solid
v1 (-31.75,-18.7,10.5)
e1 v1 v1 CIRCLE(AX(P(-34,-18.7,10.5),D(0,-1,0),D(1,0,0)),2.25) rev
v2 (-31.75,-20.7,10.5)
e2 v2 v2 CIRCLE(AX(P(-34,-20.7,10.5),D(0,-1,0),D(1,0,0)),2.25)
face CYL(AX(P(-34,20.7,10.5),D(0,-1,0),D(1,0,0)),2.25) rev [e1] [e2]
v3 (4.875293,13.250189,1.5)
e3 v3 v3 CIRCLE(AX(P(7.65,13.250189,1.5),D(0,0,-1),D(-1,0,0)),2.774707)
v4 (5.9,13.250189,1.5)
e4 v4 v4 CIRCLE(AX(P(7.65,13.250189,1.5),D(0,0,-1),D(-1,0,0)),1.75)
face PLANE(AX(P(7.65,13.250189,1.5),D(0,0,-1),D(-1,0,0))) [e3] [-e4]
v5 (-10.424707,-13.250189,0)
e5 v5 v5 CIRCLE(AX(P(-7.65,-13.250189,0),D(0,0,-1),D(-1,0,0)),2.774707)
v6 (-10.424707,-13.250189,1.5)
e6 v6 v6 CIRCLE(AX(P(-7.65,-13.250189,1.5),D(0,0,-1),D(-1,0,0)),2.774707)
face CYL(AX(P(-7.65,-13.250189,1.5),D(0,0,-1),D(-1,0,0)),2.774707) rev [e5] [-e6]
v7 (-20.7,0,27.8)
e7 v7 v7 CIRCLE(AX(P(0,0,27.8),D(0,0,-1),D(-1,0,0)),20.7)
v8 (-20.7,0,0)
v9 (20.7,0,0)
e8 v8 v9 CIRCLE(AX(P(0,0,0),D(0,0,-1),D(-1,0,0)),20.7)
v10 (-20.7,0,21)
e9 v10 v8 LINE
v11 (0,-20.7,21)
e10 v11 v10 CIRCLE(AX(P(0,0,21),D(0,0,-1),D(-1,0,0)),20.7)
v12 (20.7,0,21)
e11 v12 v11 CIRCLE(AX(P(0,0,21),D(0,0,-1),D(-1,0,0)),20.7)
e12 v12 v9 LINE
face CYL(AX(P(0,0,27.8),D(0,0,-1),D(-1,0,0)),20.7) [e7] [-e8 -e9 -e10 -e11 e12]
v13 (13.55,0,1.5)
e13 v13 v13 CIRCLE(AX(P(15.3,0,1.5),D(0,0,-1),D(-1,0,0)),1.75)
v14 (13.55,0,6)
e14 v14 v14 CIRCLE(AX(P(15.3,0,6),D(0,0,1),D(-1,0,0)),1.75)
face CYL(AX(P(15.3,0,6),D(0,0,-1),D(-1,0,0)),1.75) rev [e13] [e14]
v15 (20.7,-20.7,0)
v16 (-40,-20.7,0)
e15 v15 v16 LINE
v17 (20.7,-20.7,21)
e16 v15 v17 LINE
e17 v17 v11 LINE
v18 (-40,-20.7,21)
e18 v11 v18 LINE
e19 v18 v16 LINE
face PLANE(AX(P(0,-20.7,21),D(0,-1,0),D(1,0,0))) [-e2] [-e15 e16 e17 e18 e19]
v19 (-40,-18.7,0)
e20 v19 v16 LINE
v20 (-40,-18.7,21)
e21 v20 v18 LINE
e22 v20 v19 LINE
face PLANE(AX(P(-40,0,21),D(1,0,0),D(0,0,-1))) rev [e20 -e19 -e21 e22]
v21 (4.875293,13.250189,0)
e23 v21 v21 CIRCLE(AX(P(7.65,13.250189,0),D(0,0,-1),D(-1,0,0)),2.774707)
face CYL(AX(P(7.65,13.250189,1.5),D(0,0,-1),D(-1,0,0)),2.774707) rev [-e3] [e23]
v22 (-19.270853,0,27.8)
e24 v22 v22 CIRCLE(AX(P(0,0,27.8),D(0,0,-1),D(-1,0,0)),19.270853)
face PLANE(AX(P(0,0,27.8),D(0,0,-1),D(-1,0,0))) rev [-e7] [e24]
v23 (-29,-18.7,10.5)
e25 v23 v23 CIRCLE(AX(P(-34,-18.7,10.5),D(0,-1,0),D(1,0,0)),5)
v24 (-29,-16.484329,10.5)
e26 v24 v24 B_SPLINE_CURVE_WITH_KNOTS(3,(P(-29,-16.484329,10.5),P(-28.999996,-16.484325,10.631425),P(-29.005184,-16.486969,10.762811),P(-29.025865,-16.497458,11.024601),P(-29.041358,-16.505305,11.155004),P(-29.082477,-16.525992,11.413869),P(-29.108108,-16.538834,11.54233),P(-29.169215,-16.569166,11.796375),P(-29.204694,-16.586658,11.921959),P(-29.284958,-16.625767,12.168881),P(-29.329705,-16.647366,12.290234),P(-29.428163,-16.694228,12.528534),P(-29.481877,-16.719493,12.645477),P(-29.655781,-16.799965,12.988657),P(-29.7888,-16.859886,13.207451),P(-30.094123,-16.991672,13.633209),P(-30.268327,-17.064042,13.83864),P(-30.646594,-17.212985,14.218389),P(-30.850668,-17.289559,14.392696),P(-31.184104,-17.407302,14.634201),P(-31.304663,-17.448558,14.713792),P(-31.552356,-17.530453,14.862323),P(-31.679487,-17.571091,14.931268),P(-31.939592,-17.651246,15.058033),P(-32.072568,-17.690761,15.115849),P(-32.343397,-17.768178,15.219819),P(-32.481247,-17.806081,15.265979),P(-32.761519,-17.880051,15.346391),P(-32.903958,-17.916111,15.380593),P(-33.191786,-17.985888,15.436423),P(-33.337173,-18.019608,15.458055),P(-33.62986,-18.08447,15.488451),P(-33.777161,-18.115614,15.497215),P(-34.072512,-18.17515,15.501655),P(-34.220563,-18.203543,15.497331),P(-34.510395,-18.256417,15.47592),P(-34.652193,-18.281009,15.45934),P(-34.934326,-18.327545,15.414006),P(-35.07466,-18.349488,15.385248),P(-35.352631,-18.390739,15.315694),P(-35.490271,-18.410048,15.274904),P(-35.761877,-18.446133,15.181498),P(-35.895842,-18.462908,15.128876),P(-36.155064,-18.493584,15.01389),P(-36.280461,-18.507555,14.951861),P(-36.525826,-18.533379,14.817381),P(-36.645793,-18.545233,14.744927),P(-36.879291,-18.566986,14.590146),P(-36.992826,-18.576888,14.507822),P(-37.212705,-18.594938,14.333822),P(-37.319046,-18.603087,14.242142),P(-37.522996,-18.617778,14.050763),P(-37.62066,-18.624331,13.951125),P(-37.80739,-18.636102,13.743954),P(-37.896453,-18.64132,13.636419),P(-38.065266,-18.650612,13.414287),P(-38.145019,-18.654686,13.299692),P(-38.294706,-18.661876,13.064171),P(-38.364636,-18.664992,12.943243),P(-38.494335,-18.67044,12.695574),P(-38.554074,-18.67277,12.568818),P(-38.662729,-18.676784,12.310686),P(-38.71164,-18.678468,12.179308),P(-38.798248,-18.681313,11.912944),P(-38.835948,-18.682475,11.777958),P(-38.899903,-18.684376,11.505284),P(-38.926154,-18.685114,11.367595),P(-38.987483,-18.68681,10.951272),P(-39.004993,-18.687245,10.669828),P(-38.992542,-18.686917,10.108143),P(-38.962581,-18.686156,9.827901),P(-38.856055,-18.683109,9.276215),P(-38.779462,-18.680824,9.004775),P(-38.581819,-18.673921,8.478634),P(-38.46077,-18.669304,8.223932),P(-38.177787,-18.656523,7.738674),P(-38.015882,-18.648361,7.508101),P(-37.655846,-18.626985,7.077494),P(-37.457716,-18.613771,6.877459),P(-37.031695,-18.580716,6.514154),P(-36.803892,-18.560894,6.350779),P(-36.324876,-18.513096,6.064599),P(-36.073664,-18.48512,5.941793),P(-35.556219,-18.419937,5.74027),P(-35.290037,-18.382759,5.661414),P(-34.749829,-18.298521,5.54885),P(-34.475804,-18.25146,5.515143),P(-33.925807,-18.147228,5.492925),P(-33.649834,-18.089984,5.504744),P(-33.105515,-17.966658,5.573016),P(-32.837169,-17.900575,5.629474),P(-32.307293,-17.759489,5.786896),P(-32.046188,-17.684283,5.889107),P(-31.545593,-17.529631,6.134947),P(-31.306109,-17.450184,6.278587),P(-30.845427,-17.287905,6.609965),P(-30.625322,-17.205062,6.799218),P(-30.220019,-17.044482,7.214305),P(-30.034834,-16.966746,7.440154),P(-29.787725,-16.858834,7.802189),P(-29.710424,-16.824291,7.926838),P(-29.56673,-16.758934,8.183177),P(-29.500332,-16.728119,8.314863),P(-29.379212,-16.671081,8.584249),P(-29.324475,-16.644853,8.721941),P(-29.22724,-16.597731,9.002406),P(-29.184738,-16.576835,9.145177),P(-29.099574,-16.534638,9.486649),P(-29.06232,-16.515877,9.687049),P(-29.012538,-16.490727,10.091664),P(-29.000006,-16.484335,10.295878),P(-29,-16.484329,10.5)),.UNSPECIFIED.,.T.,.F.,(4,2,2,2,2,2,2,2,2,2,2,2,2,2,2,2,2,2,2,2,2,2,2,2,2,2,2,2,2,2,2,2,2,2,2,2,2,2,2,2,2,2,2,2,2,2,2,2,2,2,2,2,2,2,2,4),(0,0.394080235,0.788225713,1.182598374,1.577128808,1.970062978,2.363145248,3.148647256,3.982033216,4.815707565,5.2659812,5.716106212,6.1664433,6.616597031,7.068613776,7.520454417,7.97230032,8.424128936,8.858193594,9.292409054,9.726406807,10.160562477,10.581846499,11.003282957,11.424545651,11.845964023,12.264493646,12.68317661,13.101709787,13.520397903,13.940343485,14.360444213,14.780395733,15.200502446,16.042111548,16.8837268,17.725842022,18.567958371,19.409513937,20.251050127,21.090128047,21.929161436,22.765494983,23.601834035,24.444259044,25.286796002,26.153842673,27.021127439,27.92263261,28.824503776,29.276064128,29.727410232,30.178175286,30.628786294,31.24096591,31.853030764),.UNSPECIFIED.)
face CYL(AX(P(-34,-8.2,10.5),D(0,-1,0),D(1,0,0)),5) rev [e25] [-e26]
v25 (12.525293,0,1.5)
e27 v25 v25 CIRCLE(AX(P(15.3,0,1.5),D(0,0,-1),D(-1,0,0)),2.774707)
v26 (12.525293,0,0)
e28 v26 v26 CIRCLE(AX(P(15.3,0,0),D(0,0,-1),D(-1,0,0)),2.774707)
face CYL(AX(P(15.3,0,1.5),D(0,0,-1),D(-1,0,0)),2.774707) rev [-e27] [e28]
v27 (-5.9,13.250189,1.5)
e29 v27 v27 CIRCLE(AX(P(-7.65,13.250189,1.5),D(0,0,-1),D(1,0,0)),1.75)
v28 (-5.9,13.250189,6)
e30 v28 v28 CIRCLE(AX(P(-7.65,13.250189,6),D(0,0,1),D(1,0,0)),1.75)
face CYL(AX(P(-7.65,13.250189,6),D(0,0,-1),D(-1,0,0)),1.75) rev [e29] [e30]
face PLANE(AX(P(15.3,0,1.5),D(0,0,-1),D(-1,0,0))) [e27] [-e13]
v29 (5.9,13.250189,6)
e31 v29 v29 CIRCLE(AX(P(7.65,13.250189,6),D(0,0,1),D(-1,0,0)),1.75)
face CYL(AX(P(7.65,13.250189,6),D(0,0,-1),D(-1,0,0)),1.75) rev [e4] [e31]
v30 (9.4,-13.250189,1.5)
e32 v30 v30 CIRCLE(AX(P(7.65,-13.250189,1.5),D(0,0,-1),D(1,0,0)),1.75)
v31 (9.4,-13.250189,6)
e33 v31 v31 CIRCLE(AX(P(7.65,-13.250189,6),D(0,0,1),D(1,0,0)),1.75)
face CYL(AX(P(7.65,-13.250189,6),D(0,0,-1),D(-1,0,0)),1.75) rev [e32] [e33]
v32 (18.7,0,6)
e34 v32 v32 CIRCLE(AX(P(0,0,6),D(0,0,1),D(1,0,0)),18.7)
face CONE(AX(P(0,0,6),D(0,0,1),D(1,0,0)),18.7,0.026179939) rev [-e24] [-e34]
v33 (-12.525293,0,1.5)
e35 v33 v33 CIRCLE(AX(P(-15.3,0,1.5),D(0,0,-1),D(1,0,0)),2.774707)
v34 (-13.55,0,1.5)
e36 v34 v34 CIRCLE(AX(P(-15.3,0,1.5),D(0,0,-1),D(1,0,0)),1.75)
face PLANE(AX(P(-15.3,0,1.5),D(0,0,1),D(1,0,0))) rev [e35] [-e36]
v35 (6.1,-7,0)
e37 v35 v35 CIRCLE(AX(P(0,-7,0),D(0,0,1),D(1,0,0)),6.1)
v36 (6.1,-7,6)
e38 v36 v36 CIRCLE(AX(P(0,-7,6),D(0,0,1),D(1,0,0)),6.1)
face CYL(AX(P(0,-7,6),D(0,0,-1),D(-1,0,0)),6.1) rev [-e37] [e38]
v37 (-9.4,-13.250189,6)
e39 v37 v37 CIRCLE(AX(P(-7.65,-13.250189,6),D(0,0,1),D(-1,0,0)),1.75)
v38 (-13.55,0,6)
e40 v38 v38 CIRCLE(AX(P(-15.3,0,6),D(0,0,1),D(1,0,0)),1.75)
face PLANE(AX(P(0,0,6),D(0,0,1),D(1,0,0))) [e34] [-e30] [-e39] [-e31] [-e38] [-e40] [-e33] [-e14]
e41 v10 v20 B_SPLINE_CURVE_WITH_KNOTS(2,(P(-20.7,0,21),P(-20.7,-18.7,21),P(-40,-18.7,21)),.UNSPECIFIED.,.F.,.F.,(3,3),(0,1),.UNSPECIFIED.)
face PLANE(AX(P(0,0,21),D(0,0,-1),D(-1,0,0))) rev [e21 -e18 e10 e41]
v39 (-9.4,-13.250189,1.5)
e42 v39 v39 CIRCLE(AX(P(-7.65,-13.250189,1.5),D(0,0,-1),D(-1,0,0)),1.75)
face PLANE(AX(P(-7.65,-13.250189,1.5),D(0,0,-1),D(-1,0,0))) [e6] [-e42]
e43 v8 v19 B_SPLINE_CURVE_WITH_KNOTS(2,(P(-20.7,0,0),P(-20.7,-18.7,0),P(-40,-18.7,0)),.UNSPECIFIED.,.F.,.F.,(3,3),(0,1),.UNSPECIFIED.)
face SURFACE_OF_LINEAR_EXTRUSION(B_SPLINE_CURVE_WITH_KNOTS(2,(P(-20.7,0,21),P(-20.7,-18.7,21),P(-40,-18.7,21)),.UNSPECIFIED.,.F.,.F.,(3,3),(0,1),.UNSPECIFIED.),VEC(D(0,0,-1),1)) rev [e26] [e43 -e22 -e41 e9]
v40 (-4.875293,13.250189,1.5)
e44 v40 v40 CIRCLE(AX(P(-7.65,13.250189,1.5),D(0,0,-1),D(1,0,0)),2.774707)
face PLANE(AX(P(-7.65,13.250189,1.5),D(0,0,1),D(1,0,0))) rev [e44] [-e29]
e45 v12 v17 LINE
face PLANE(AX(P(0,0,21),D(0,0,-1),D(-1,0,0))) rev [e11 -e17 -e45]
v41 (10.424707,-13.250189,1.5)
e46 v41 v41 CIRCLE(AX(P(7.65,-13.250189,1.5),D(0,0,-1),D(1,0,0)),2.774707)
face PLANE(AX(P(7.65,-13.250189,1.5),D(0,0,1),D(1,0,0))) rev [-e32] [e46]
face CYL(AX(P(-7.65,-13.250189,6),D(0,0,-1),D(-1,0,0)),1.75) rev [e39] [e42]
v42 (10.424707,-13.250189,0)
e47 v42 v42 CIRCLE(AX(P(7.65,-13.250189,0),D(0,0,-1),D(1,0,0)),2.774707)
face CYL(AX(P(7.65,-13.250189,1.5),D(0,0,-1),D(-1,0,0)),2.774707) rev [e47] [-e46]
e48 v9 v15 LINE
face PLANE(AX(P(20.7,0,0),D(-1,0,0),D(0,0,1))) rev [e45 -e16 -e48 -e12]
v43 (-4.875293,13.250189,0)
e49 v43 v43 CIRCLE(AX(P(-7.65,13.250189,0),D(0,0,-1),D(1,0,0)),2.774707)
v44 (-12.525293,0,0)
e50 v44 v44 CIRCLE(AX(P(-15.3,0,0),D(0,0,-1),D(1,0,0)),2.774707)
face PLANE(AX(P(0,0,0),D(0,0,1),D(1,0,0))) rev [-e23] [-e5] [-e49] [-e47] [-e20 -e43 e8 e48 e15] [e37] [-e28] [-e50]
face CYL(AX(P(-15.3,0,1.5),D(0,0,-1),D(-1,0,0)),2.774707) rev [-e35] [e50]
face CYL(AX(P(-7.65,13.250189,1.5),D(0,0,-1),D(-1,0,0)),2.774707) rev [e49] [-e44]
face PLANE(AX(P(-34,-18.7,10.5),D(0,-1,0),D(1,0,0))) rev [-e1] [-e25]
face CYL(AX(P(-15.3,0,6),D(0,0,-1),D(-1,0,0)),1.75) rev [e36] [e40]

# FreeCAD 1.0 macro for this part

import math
import FreeCAD as App
import Part
import Sketcher


def faces_at(feature, points):
    """Names of the faces that lie closest to the given points."""
    faces = feature.Shape.Faces
    near = lambda p: min(range(len(faces)), key=lambda i: faces[i].distToShape(Part.Vertex(*p))[0])
    return sorted({f"Face{near(p) + 1}" for p in points})

doc = App.newDocument("Part")
body = doc.addObject("PartDesign::Body", "Body")

# Sketch on XY plane
sketch1 = body.newObject("Sketcher::SketchObject", "Sketch")
sketch1.AttachmentSupport = (doc.getObject("XY_Plane"), [""])
sketch1.MapMode = "FlatFace"
sketch1.addGeometry(Part.Circle(App.Vector(0, 0, 0), App.Vector(0, 0, 1), 18.7), False)
sketch1.addGeometry(Part.Circle(App.Vector(-7.7, -13.3, 0), App.Vector(0, 0, 1), 1.8), False)
sketch1.addGeometry(Part.Circle(App.Vector(7.7, -13.3, 0), App.Vector(0, 0, 1), 1.8), False)
sketch1.addGeometry(Part.Circle(App.Vector(0, -7, 0), App.Vector(0, 0, 1), 6.1), False)
sketch1.addGeometry(Part.Circle(App.Vector(-15.3, 0, 0), App.Vector(0, 0, 1), 1.8), False)
sketch1.addGeometry(Part.Circle(App.Vector(-7.7, 13.3, 0), App.Vector(0, 0, 1), 1.8), False)
sketch1.addGeometry(Part.Circle(App.Vector(15.3, 0, 0), App.Vector(0, 0, 1), 1.8), False)
sketch1.addGeometry(Part.Circle(App.Vector(7.7, 13.3, 0), App.Vector(0, 0, 1), 1.8), False)
sketch1.addConstraint(Sketcher.Constraint("Coincident", 0, 3, -1, 1))
sketch1.addConstraint(Sketcher.Constraint("Equal", 1, 2))
sketch1.addConstraint(Sketcher.Constraint("Equal", 2, 4))
sketch1.addConstraint(Sketcher.Constraint("Equal", 4, 5))
sketch1.addConstraint(Sketcher.Constraint("Equal", 5, 6))
sketch1.addConstraint(Sketcher.Constraint("Equal", 6, 7))
sketch1.addConstraint(Sketcher.Constraint("Symmetric", 2, 3, 5, 3, -1, 1))
sketch1.addConstraint(Sketcher.Constraint("Symmetric", 4, 3, 6, 3, -1, 1))
sketch1.addConstraint(Sketcher.Constraint("Symmetric", 1, 3, 7, 3, -1, 1))
sketch1.addConstraint(Sketcher.Constraint("Symmetric", 1, 3, 2, 3, -2))
sketch1.addConstraint(Sketcher.Constraint("PointOnObject", 3, 3, -2))
sketch1.addConstraint(Sketcher.Constraint("PointOnObject", 4, 3, -1))
sketch1.addConstraint(Sketcher.Constraint("Diameter", 0, 37.4))
sketch1.addConstraint(Sketcher.Constraint("Diameter", 1, 3.5))
sketch1.addConstraint(Sketcher.Constraint("Diameter", 3, 12.2))
sketch1.addConstraint(Sketcher.Constraint("DistanceY", 3, 3, -1, 1, 7.0))
sketch1.addConstraint(Sketcher.Constraint("DistanceX", 4, 3, -1, 1, 15.3))
sketch1.addConstraint(Sketcher.Constraint("DistanceX", 1, 3, 2, 3, 15.3))
sketch1.addConstraint(Sketcher.Constraint("DistanceY", 1, 3, -1, 1, 13.250189))
pad1 = body.newObject("PartDesign::Pad", "Pad")
pad1.Profile = sketch1
pad1.Length = 6

# Sketch on XY plane
sketch2 = body.newObject("Sketcher::SketchObject", "Sketch001")
sketch2.AttachmentSupport = (doc.getObject("XY_Plane"), [""])
sketch2.MapMode = "FlatFace"
sketch2.addGeometry(Part.Circle(App.Vector(0, 0, 0), App.Vector(0, 0, 1), 21), False)
sketch2.addGeometry(Part.Circle(App.Vector(0, 0, 0), App.Vector(0, 0, 1), 19), False)
sketch2.addConstraint(Sketcher.Constraint("Coincident", 0, 3, -1, 1))
sketch2.addConstraint(Sketcher.Constraint("Coincident", 1, 3, -1, 1))
sketch2.addConstraint(Sketcher.Constraint("Diameter", 0, 41.4))
sketch2.addConstraint(Sketcher.Constraint("Diameter", 1, 37.4))
pad2 = body.newObject("PartDesign::Pad", "Pad001")
pad2.Profile = sketch2
pad2.Length = 27.8

# Sketch on XY plane
sketch3 = body.newObject("Sketcher::SketchObject", "Sketch002")
sketch3.AttachmentSupport = (doc.getObject("XY_Plane"), [""])
sketch3.MapMode = "FlatFace"
sketch3.addGeometry(Part.BSplineCurve([App.Vector(20.7, 0, 0), App.Vector(20.7, -18.7, 0), App.Vector(40, -18.7, 0)], [3, 3], [0, 1], False, 2, [1, 1, 1], False), False)
sketch3.addGeometry(Part.LineSegment(App.Vector(40, -18.7, 0), App.Vector(40, -20.7, 0)), False)
sketch3.addGeometry(Part.LineSegment(App.Vector(40, -20.7, 0), App.Vector(0, -20.7, 0)), False)
sketch3.addGeometry(Part.ArcOfCircle(Part.Circle(App.Vector(0, 0, 0), App.Vector(0, 0, 1), 20.7), math.radians(-90), math.radians(0)), False)
sketch3.addGeometry(Part.ArcOfCircle(Part.Circle(App.Vector(0, 0, 0), App.Vector(0, 0, 1), 20.7), math.radians(180), math.radians(270)), False)
sketch3.addGeometry(Part.LineSegment(App.Vector(0, -20.7, 0), App.Vector(-40, -20.7, 0)), False)
sketch3.addGeometry(Part.LineSegment(App.Vector(-40, -20.7, 0), App.Vector(-40, -18.7, 0)), False)
sketch3.addGeometry(Part.BSplineCurve([App.Vector(-20.7, 0, 0), App.Vector(-20.7, -18.7, 0), App.Vector(-40, -18.7, 0)], [3, 3], [0, 1], False, 2, [1, 1, 1], False), False)
sketch3.addConstraint(Sketcher.Constraint("Block", 0))
sketch3.addConstraint(Sketcher.Constraint("Block", 7))
sketch3.addConstraint(Sketcher.Constraint("Coincident", 0, 2, 1, 1))
sketch3.addConstraint(Sketcher.Constraint("Coincident", 1, 2, 2, 1))
sketch3.addConstraint(Sketcher.Constraint("Tangent", 2, 2, 3, 1))
sketch3.addConstraint(Sketcher.Constraint("Coincident", 3, 2, 0, 1))
sketch3.addConstraint(Sketcher.Constraint("Tangent", 4, 2, 5, 1))
sketch3.addConstraint(Sketcher.Constraint("Coincident", 5, 2, 6, 1))
sketch3.addConstraint(Sketcher.Constraint("Coincident", 6, 2, 7, 2))
sketch3.addConstraint(Sketcher.Constraint("Coincident", 7, 1, 4, 1))
sketch3.addConstraint(Sketcher.Constraint("Vertical", 1))
sketch3.addConstraint(Sketcher.Constraint("Horizontal", 2))
sketch3.addConstraint(Sketcher.Constraint("Horizontal", 5))
sketch3.addConstraint(Sketcher.Constraint("Vertical", 6))
sketch3.addConstraint(Sketcher.Constraint("Coincident", 3, 3, -1, 1))
sketch3.addConstraint(Sketcher.Constraint("Coincident", 4, 3, -1, 1))
pad3 = body.newObject("PartDesign::Pad", "Pad002")
pad3.Profile = sketch3
pad3.Length = 21

# Sketch on XZ plane
sketch4 = body.newObject("Sketcher::SketchObject", "Sketch003")
sketch4.AttachmentSupport = (doc.getObject("XZ_Plane"), [""])
sketch4.MapMode = "FlatFace"
sketch4.AttachmentOffset = App.Placement(App.Vector(0, 0, 20.7), App.Rotation())
sketch4.addGeometry(Part.Circle(App.Vector(-34, 10.5, 0), App.Vector(0, 0, 1), 2.2), False)
sketch4.addGeometry(Part.Circle(App.Vector(34, 10.5, 0), App.Vector(0, 0, 1), 2.2), False)
sketch4.addConstraint(Sketcher.Constraint("Equal", 0, 1))
sketch4.addConstraint(Sketcher.Constraint("Symmetric", 0, 3, 1, 3, -2))
sketch4.addConstraint(Sketcher.Constraint("Diameter", 0, 4.5))
sketch4.addConstraint(Sketcher.Constraint("DistanceX", 0, 3, -1, 1, 34.0))
sketch4.addConstraint(Sketcher.Constraint("DistanceY", -1, 1, 0, 3, 10.5))
pocket1 = body.newObject("PartDesign::Pocket", "Pocket")
pocket1.Profile = sketch4
pocket1.Type = "ThroughAll"

# Sketch on XZ plane
sketch5 = body.newObject("Sketcher::SketchObject", "Sketch004")
sketch5.AttachmentSupport = (doc.getObject("XZ_Plane"), [""])
sketch5.MapMode = "FlatFace"
sketch5.AttachmentOffset = App.Placement(App.Vector(0, 0, 18.7), App.Rotation())
sketch5.addGeometry(Part.Circle(App.Vector(-34, 10, 0), App.Vector(0, 0, 1), 5), False)
sketch5.addGeometry(Part.Circle(App.Vector(34, 10, 0), App.Vector(0, 0, 1), 5), False)
sketch5.addConstraint(Sketcher.Constraint("Equal", 0, 1))
sketch5.addConstraint(Sketcher.Constraint("Symmetric", 0, 3, 1, 3, -2))
sketch5.addConstraint(Sketcher.Constraint("Diameter", 0, 10.0))
sketch5.addConstraint(Sketcher.Constraint("DistanceX", 0, 3, -1, 1, 34.0))
sketch5.addConstraint(Sketcher.Constraint("DistanceY", -1, 1, 0, 3, 10.5))
pocket2 = body.newObject("PartDesign::Pocket", "Pocket001")
pocket2.Profile = sketch5
pocket2.Length = 10.5
doc.recompute()

datumplane = body.newObject("PartDesign::Plane", "DatumPlane")
datumplane.AttachmentSupport = (doc.getObject("XY_Plane"), [""])
datumplane.MapMode = "FlatFace"
datumplane.AttachmentOffset = App.Placement(App.Vector(0, 0, 6), App.Rotation())
draft = body.newObject("PartDesign::Draft", "Draft")
draft.Base = (pocket2, faces_at(pocket2, [(18.7, 0, 16.9)]))
draft.NeutralPlane = (datumplane, [""])
draft.Angle = 1.5
draft.Reversed = False

# Sketch on XY plane
sketch6 = body.newObject("Sketcher::SketchObject", "Sketch005")
sketch6.AttachmentSupport = (doc.getObject("XY_Plane"), [""])
sketch6.MapMode = "FlatFace"
sketch6.addGeometry(Part.Circle(App.Vector(7.7, 13.3, 0), App.Vector(0, 0, 1), 2.8), False)
sketch6.addGeometry(Part.Circle(App.Vector(7.7, 13.3, 0), App.Vector(0, 0, 1), 1.8), False)
sketch6.addGeometry(Part.Circle(App.Vector(-7.7, 13.3, 0), App.Vector(0, 0, 1), 2.8), False)
sketch6.addGeometry(Part.Circle(App.Vector(-7.7, 13.3, 0), App.Vector(0, 0, 1), 1.8), False)
sketch6.addGeometry(Part.Circle(App.Vector(15.3, 0, 0), App.Vector(0, 0, 1), 2.8), False)
sketch6.addGeometry(Part.Circle(App.Vector(15.3, 0, 0), App.Vector(0, 0, 1), 1.8), False)
sketch6.addGeometry(Part.Circle(App.Vector(-15.3, 0, 0), App.Vector(0, 0, 1), 2.8), False)
sketch6.addGeometry(Part.Circle(App.Vector(-15.3, 0, 0), App.Vector(0, 0, 1), 1.8), False)
sketch6.addGeometry(Part.Circle(App.Vector(-7.7, -13.3, 0), App.Vector(0, 0, 1), 2.8), False)
sketch6.addGeometry(Part.Circle(App.Vector(-7.7, -13.3, 0), App.Vector(0, 0, 1), 1.8), False)
sketch6.addGeometry(Part.Circle(App.Vector(7.7, -13.3, 0), App.Vector(0, 0, 1), 2.8), False)
sketch6.addGeometry(Part.Circle(App.Vector(7.7, -13.3, 0), App.Vector(0, 0, 1), 1.8), False)
sketch6.addConstraint(Sketcher.Constraint("Coincident", 1, 3, 0, 3))
sketch6.addConstraint(Sketcher.Constraint("Coincident", 3, 3, 2, 3))
sketch6.addConstraint(Sketcher.Constraint("Coincident", 5, 3, 4, 3))
sketch6.addConstraint(Sketcher.Constraint("Coincident", 7, 3, 6, 3))
sketch6.addConstraint(Sketcher.Constraint("Coincident", 9, 3, 8, 3))
sketch6.addConstraint(Sketcher.Constraint("Coincident", 11, 3, 10, 3))
sketch6.addConstraint(Sketcher.Constraint("Equal", 0, 2))
sketch6.addConstraint(Sketcher.Constraint("Equal", 1, 3))
sketch6.addConstraint(Sketcher.Constraint("Equal", 2, 4))
sketch6.addConstraint(Sketcher.Constraint("Equal", 3, 5))
sketch6.addConstraint(Sketcher.Constraint("Equal", 4, 6))
sketch6.addConstraint(Sketcher.Constraint("Equal", 5, 7))
sketch6.addConstraint(Sketcher.Constraint("Equal", 6, 8))
sketch6.addConstraint(Sketcher.Constraint("Equal", 7, 9))
sketch6.addConstraint(Sketcher.Constraint("Equal", 8, 10))
sketch6.addConstraint(Sketcher.Constraint("Equal", 9, 11))
sketch6.addConstraint(Sketcher.Constraint("Symmetric", 4, 3, 6, 3, -1, 1))
sketch6.addConstraint(Sketcher.Constraint("Symmetric", 0, 3, 8, 3, -1, 1))
sketch6.addConstraint(Sketcher.Constraint("Symmetric", 2, 3, 10, 3, -1, 1))
sketch6.addConstraint(Sketcher.Constraint("Symmetric", 0, 3, 2, 3, -2))
sketch6.addConstraint(Sketcher.Constraint("PointOnObject", 4, 3, -1))
sketch6.addConstraint(Sketcher.Constraint("Diameter", 1, 3.5))
sketch6.addConstraint(Sketcher.Constraint("DistanceX", -1, 1, 4, 3, 15.3))
sketch6.addConstraint(Sketcher.Constraint("DistanceX", 2, 3, 0, 3, 15.3))
sketch6.addConstraint(Sketcher.Constraint("Diameter", 0, 5.549414))
sketch6.addConstraint(Sketcher.Constraint("DistanceY", -1, 1, 0, 3, 13.250189))
pocket3 = body.newObject("PartDesign::Pocket", "Pocket002")
pocket3.Profile = sketch6
pocket3.Length = 1.5
pocket3.Reversed = True

# Sketch on XY plane
sketch7 = body.newObject("Sketcher::SketchObject", "Sketch006")
sketch7.AttachmentSupport = (doc.getObject("XY_Plane"), [""])
sketch7.MapMode = "FlatFace"
sketch7.AttachmentOffset = App.Placement(App.Vector(0, 0, 21), App.Rotation())
sketch7.addGeometry(Part.LineSegment(App.Vector(21, 0, 0), App.Vector(21, -21, 0)), False)
sketch7.addGeometry(Part.LineSegment(App.Vector(21, -21, 0), App.Vector(40, -21, 0)), False)
sketch7.addGeometry(Part.LineSegment(App.Vector(40, -21, 0), App.Vector(40, 0, 0)), False)
sketch7.addGeometry(Part.LineSegment(App.Vector(40, 0, 0), App.Vector(21, 0, 0)), False)
sketch7.addConstraint(Sketcher.Constraint("Coincident", 0, 2, 1, 1))
sketch7.addConstraint(Sketcher.Constraint("Coincident", 1, 2, 2, 1))
sketch7.addConstraint(Sketcher.Constraint("Coincident", 2, 2, 3, 1))
sketch7.addConstraint(Sketcher.Constraint("Coincident", 3, 2, 0, 1))
sketch7.addConstraint(Sketcher.Constraint("Vertical", 0))
sketch7.addConstraint(Sketcher.Constraint("Horizontal", 1))
sketch7.addConstraint(Sketcher.Constraint("Vertical", 2))
sketch7.addConstraint(Sketcher.Constraint("Horizontal", 3))
sketch7.addConstraint(Sketcher.Constraint("PointOnObject", 2, 2, -1))
sketch7.addConstraint(Sketcher.Constraint("DistanceX", 1, 1, 1, 2, 19.3))
sketch7.addConstraint(Sketcher.Constraint("DistanceY", 0, 2, 0, 1, 20.7))
sketch7.addConstraint(Sketcher.Constraint("DistanceX", -1, 1, 1, 2, 40.0))
pocket4 = body.newObject("PartDesign::Pocket", "Pocket003")
pocket4.Profile = sketch7
pocket4.Type = "ThroughAll"

doc.recompute()
